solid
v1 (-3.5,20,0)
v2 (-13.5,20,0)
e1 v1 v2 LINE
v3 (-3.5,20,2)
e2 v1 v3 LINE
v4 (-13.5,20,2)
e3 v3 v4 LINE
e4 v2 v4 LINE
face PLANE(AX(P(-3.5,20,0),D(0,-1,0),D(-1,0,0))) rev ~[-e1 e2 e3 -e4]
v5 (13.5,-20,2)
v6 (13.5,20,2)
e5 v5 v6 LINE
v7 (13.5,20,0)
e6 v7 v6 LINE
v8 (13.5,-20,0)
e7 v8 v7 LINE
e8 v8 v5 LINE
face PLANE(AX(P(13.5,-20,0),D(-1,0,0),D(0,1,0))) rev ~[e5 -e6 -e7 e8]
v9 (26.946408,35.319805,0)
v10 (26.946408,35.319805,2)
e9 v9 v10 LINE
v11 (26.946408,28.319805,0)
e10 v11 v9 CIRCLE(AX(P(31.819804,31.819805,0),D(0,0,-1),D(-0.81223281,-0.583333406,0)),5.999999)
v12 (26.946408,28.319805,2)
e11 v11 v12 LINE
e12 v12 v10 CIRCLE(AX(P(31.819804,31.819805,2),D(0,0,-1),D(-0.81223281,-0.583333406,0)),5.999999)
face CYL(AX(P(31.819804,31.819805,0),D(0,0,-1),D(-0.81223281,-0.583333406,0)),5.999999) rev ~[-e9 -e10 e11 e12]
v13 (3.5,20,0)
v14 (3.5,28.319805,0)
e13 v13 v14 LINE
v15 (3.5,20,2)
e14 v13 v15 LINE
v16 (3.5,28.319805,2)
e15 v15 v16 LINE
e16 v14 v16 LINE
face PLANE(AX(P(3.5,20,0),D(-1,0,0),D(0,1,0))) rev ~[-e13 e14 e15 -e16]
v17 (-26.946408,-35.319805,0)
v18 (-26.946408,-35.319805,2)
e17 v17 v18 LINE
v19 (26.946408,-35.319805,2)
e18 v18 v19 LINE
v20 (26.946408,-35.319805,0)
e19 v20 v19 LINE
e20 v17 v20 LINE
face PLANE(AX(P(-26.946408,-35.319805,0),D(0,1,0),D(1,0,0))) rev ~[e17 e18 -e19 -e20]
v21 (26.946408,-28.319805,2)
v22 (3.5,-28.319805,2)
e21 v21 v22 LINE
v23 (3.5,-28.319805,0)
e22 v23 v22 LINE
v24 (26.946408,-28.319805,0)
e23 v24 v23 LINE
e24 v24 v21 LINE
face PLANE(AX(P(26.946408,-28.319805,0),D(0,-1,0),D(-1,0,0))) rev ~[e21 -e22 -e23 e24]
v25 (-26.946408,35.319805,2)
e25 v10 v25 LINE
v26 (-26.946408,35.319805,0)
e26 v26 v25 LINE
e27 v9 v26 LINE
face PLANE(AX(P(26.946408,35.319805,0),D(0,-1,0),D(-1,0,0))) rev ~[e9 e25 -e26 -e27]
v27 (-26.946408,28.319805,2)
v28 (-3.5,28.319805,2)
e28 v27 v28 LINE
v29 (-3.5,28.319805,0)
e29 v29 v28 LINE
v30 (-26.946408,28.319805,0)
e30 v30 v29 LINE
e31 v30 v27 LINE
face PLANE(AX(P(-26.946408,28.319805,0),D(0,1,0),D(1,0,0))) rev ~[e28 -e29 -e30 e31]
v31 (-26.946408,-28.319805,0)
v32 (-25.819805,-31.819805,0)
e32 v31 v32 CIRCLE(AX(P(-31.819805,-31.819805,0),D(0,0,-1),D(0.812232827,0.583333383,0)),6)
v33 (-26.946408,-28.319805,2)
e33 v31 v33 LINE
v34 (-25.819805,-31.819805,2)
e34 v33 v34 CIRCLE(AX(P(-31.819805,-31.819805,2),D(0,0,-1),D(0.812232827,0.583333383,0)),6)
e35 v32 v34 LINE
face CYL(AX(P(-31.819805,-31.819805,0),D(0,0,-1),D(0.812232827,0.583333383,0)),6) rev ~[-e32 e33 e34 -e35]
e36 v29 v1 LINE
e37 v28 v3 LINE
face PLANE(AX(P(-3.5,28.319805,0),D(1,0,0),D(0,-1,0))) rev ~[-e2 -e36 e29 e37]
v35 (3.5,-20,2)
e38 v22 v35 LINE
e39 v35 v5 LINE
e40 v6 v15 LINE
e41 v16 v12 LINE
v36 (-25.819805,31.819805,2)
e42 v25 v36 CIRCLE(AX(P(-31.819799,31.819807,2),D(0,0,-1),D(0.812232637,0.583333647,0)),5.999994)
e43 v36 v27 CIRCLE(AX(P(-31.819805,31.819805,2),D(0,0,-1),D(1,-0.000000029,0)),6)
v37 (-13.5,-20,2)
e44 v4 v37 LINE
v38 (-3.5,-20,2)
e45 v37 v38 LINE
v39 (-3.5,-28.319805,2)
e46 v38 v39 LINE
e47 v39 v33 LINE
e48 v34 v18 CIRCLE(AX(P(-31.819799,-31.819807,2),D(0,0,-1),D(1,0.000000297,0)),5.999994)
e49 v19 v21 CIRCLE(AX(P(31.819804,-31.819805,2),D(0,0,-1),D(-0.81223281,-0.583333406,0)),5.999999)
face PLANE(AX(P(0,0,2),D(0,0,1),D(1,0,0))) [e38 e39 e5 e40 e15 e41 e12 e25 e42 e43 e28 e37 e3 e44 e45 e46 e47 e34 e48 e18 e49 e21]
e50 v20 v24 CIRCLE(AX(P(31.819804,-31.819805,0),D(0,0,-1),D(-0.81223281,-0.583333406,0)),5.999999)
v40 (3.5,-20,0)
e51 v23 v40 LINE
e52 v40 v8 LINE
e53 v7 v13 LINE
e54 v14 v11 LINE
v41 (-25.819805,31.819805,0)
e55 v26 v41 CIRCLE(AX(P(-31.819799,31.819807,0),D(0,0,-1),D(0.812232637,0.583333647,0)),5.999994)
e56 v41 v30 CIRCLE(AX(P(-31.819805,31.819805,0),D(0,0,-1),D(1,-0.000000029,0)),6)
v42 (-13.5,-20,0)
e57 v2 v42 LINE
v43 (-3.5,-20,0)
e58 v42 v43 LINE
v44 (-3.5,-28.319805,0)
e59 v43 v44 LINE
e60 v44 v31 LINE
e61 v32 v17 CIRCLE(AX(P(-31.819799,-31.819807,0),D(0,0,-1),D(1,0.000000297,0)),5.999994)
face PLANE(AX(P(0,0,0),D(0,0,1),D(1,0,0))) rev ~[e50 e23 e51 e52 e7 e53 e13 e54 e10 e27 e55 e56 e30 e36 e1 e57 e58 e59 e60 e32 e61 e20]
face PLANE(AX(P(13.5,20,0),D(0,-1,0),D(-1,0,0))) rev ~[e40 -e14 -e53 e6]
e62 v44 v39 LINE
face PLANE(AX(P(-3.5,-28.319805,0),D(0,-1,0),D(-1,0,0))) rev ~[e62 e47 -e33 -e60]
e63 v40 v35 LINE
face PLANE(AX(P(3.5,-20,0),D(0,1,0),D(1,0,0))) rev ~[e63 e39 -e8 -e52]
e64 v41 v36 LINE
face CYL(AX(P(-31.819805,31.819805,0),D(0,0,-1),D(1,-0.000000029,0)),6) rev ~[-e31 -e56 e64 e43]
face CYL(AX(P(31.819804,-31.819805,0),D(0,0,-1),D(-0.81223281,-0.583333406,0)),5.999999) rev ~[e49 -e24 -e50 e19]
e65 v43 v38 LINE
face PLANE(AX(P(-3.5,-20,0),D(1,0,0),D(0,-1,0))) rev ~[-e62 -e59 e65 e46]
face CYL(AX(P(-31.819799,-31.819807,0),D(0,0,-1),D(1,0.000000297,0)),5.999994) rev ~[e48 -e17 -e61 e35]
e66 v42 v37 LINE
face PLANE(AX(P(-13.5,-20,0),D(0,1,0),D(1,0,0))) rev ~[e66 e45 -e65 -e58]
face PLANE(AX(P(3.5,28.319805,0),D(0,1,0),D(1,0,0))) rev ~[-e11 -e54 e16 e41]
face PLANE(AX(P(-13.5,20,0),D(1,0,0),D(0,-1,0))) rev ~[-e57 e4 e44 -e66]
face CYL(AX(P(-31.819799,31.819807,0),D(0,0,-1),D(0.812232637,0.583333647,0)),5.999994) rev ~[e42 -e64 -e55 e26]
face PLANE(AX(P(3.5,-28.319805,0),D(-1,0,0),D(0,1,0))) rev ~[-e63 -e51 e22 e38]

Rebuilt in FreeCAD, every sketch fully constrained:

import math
import FreeCAD as App
import Part
import Sketcher

doc = App.newDocument("Part")
body = doc.addObject("PartDesign::Body", "Body")

# Sketch on XY plane
sketch1 = body.newObject("Sketcher::SketchObject", "Sketch")
sketch1.AttachmentSupport = (doc.getObject("XY_Plane"), [""])
sketch1.MapMode = "FlatFace"
sketch1.addGeometry(Part.LineSegment(App.Vector(13.5, 20, 0), App.Vector(3.5, 20, 0)), False)
sketch1.addGeometry(Part.LineSegment(App.Vector(3.5, 20, 0), App.Vector(3.5, 28.3, 0)), False)
sketch1.addGeometry(Part.LineSegment(App.Vector(3.5, 28.3, 0), App.Vector(26.9, 28.3, 0)), False)
sketch1.addGeometry(Part.ArcOfCircle(Part.Circle(App.Vector(31.8, 31.8, 0), App.Vector(0, 0, 1), 6), math.radians(144), math.radians(216)), False)
sketch1.addGeometry(Part.LineSegment(App.Vector(26.9, 35.3, 0), App.Vector(-26.9, 35.3, 0)), False)
sketch1.addGeometry(Part.ArcOfCircle(Part.Circle(App.Vector(-31.8, 31.8, 0), App.Vector(0, 0, 1), 6), math.radians(0), math.radians(36)), False)
sketch1.addGeometry(Part.ArcOfCircle(Part.Circle(App.Vector(-31.8, 31.8, 0), App.Vector(0, 0, 1), 6), math.radians(-36), math.radians(0)), False)
sketch1.addGeometry(Part.LineSegment(App.Vector(-26.9, 28.3, 0), App.Vector(-3.5, 28.3, 0)), False)
sketch1.addGeometry(Part.LineSegment(App.Vector(-3.5, 28.3, 0), App.Vector(-3.5, 20, 0)), False)
sketch1.addGeometry(Part.LineSegment(App.Vector(-3.5, 20, 0), App.Vector(-13.5, 20, 0)), False)
sketch1.addGeometry(Part.LineSegment(App.Vector(-13.5, 20, 0), App.Vector(-13.5, -20, 0)), False)
sketch1.addGeometry(Part.LineSegment(App.Vector(-13.5, -20, 0), App.Vector(-3.5, -20, 0)), False)
sketch1.addGeometry(Part.LineSegment(App.Vector(-3.5, -20, 0), App.Vector(-3.5, -28.3, 0)), False)
sketch1.addGeometry(Part.LineSegment(App.Vector(-3.5, -28.3, 0), App.Vector(-26.9, -28.3, 0)), False)
sketch1.addGeometry(Part.ArcOfCircle(Part.Circle(App.Vector(-31.8, -31.8, 0), App.Vector(0, 0, 1), 6), math.radians(0), math.radians(36)), False)
sketch1.addGeometry(Part.ArcOfCircle(Part.Circle(App.Vector(-31.8, -31.8, 0), App.Vector(0, 0, 1), 6), math.radians(-36), math.radians(0)), False)
sketch1.addGeometry(Part.LineSegment(App.Vector(-26.9, -35.3, 0), App.Vector(26.9, -35.3, 0)), False)
sketch1.addGeometry(Part.ArcOfCircle(Part.Circle(App.Vector(31.8, -31.8, 0), App.Vector(0, 0, 1), 6), math.radians(144), math.radians(216)), False)
sketch1.addGeometry(Part.LineSegment(App.Vector(26.9, -28.3, 0), App.Vector(3.5, -28.3, 0)), False)
sketch1.addGeometry(Part.LineSegment(App.Vector(3.5, -28.3, 0), App.Vector(3.5, -20, 0)), False)
sketch1.addGeometry(Part.LineSegment(App.Vector(3.5, -20, 0), App.Vector(13.5, -20, 0)), False)
sketch1.addGeometry(Part.LineSegment(App.Vector(13.5, -20, 0), App.Vector(13.5, 20, 0)), False)
sketch1.addConstraint(Sketcher.Constraint("Coincident", 0, 2, 1, 1))
sketch1.addConstraint(Sketcher.Constraint("Coincident", 1, 2, 2, 1))
sketch1.addConstraint(Sketcher.Constraint("Coincident", 2, 2, 3, 2))
sketch1.addConstraint(Sketcher.Constraint("Coincident", 3, 1, 4, 1))
sketch1.addConstraint(Sketcher.Constraint("Coincident", 4, 2, 5, 2))
sketch1.addConstraint(Sketcher.Constraint("Tangent", 5, 1, 6, 2))
sketch1.addConstraint(Sketcher.Constraint("Coincident", 6, 1, 7, 1))
sketch1.addConstraint(Sketcher.Constraint("Coincident", 7, 2, 8, 1))
sketch1.addConstraint(Sketcher.Constraint("Coincident", 8, 2, 9, 1))
sketch1.addConstraint(Sketcher.Constraint("Coincident", 9, 2, 10, 1))
sketch1.addConstraint(Sketcher.Constraint("Coincident", 10, 2, 11, 1))
sketch1.addConstraint(Sketcher.Constraint("Coincident", 11, 2, 12, 1))
sketch1.addConstraint(Sketcher.Constraint("Coincident", 12, 2, 13, 1))
sketch1.addConstraint(Sketcher.Constraint("Coincident", 13, 2, 14, 2))
sketch1.addConstraint(Sketcher.Constraint("Tangent", 14, 1, 15, 2))
sketch1.addConstraint(Sketcher.Constraint("Coincident", 15, 1, 16, 1))
sketch1.addConstraint(Sketcher.Constraint("Coincident", 16, 2, 17, 2))
sketch1.addConstraint(Sketcher.Constraint("Coincident", 17, 1, 18, 1))
sketch1.addConstraint(Sketcher.Constraint("Coincident", 18, 2, 19, 1))
sketch1.addConstraint(Sketcher.Constraint("Coincident", 19, 2, 20, 1))
sketch1.addConstraint(Sketcher.Constraint("Coincident", 20, 2, 21, 1))
sketch1.addConstraint(Sketcher.Constraint("Coincident", 21, 2, 0, 1))
sketch1.addConstraint(Sketcher.Constraint("Horizontal", 0))
sketch1.addConstraint(Sketcher.Constraint("Vertical", 1))
sketch1.addConstraint(Sketcher.Constraint("Horizontal", 2))
sketch1.addConstraint(Sketcher.Constraint("Horizontal", 4))
sketch1.addConstraint(Sketcher.Constraint("Horizontal", 7))
sketch1.addConstraint(Sketcher.Constraint("Vertical", 8))
sketch1.addConstraint(Sketcher.Constraint("Horizontal", 9))
sketch1.addConstraint(Sketcher.Constraint("Vertical", 10))
sketch1.addConstraint(Sketcher.Constraint("Horizontal", 11))
sketch1.addConstraint(Sketcher.Constraint("Vertical", 12))
sketch1.addConstraint(Sketcher.Constraint("Horizontal", 13))
sketch1.addConstraint(Sketcher.Constraint("Horizontal", 16))
sketch1.addConstraint(Sketcher.Constraint("Horizontal", 18))
sketch1.addConstraint(Sketcher.Constraint("Vertical", 19))
sketch1.addConstraint(Sketcher.Constraint("Horizontal", 20))
sketch1.addConstraint(Sketcher.Constraint("Vertical", 21))
sketch1.addConstraint(Sketcher.Constraint("Equal", 3, 6))
sketch1.addConstraint(Sketcher.Constraint("Equal", 6, 14))
sketch1.addConstraint(Sketcher.Constraint("Equal", 5, 15))
sketch1.addConstraint(Sketcher.Constraint("Equal", 14, 17))
sketch1.addConstraint(Sketcher.Constraint("Symmetric", 3, 3, 14, 3, -1, 1))
sketch1.addConstraint(Sketcher.Constraint("Symmetric", 5, 3, 17, 3, -1, 1))
sketch1.addConstraint(Sketcher.Constraint("Symmetric", 0, 2, 11, 2, -1, 1))
sketch1.addConstraint(Sketcher.Constraint("Symmetric", 3, 1, 15, 1, -1, 1))
sketch1.addConstraint(Sketcher.Constraint("Symmetric", 7, 2, 18, 2, -1, 1))
sketch1.addConstraint(Sketcher.Constraint("Symmetric", 9, 2, 20, 2, -1, 1))
sketch1.addConstraint(Sketcher.Constraint("Symmetric", 3, 3, 5, 3, -2))
sketch1.addConstraint(Sketcher.Constraint("Symmetric", 1, 2, 7, 2, -2))
sketch1.addConstraint(Sketcher.Constraint("Horizontal", 6, 3, 5, 1))
sketch1.addConstraint(Sketcher.Constraint("Horizontal", 0, 2, 8, 2))
sketch1.addConstraint(Sketcher.Constraint("Horizontal", 17, 3, 14, 1))
sketch1.addConstraint(Sketcher.Constraint("Horizontal", 13, 2, 17, 1))
sketch1.addConstraint(Sketcher.Constraint("Vertical", 2, 2, 3, 1))
sketch1.addConstraint(Sketcher.Constraint("Radius", 3, 5.999999))
sketch1.addConstraint(Sketcher.Constraint("DistanceX", 0, 2, 0, 1, 10.0))
sketch1.addConstraint(Sketcher.Constraint("DistanceY", 10, 2, 10, 1, 40.0))
sketch1.addConstraint(Sketcher.Constraint("DistanceY", 2, 2, 3, 1, 7.0))
sketch1.addConstraint(Sketcher.Constraint("DistanceX", 7, 2, 1, 2, 7.0))
sketch1.addConstraint(Sketcher.Constraint("DistanceX", 2, 1, 2, 2, 23.446408))
sketch1.addConstraint(Sketcher.Constraint("DistanceY", 1, 1, 1, 2, 8.319805))
pad1 = body.newObject("PartDesign::Pad", "Pad")
pad1.Profile = sketch1
pad1.Length = 2

doc.recompute()
